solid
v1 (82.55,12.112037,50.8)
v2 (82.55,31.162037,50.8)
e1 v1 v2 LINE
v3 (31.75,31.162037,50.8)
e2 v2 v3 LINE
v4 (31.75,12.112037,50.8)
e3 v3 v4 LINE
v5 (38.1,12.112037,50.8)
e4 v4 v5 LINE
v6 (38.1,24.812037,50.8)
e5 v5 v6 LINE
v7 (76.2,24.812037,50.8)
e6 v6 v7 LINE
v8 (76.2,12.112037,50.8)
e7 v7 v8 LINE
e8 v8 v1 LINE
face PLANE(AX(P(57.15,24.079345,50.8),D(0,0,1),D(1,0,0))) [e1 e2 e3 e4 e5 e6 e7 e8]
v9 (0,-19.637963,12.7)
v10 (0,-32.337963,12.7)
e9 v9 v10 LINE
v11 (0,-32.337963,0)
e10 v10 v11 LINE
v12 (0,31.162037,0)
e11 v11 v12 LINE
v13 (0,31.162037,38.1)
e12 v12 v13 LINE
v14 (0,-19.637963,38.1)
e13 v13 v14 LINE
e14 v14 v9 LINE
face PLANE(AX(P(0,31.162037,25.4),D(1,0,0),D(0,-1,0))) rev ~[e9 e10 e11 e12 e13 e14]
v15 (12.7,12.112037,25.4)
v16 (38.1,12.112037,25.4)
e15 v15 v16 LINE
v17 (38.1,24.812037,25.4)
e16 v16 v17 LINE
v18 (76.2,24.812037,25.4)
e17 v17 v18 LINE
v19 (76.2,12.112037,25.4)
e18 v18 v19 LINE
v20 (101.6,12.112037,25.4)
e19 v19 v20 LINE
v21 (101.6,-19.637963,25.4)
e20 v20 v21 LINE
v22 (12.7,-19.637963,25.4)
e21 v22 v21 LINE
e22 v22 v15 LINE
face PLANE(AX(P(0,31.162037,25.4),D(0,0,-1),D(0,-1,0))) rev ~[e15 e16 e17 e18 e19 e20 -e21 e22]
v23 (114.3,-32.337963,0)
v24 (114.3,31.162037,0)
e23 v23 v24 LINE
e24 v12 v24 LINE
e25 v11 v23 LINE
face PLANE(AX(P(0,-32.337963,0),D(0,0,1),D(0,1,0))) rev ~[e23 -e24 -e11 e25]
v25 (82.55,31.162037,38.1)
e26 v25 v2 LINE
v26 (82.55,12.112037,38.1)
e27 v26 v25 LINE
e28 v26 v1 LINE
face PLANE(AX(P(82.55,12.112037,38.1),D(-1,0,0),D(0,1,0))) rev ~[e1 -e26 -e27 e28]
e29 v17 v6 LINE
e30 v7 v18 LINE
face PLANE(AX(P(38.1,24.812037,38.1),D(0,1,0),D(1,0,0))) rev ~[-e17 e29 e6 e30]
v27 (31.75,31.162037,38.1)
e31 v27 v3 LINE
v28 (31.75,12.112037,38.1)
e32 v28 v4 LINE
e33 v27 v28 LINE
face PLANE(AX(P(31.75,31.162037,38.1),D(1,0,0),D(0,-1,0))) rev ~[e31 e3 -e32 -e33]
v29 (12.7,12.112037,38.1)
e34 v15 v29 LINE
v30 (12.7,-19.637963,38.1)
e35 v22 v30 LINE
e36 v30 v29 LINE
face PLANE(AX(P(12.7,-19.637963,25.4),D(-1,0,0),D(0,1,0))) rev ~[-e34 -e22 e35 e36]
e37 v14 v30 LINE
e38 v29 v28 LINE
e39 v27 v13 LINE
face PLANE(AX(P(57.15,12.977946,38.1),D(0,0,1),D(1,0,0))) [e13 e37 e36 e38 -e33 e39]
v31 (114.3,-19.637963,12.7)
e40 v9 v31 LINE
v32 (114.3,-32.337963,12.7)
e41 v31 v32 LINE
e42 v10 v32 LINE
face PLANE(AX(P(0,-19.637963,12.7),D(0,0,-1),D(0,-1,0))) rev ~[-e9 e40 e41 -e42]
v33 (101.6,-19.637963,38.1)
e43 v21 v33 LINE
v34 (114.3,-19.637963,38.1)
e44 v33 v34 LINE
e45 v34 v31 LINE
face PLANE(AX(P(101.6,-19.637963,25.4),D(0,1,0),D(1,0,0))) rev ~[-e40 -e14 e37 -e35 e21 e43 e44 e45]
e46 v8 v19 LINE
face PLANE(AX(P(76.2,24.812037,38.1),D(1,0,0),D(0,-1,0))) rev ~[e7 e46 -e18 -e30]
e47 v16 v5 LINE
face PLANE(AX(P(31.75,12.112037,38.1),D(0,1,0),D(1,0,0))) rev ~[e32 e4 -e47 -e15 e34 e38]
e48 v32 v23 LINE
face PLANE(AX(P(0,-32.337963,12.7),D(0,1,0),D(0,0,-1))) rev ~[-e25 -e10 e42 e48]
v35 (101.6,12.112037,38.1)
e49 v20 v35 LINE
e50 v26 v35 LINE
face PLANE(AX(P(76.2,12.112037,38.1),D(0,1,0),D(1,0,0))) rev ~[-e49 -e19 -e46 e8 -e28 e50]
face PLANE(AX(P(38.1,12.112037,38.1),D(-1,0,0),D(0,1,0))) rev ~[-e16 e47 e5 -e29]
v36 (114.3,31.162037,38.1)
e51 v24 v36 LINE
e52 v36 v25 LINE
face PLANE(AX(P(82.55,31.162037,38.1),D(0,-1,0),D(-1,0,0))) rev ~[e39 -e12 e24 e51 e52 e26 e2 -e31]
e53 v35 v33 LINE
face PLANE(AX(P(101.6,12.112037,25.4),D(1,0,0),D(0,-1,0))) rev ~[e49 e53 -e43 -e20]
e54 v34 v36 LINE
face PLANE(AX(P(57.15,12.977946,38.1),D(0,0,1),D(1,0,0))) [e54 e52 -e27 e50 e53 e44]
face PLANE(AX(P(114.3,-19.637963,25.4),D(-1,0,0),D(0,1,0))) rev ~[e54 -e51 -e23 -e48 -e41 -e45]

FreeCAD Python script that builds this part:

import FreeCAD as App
import Part
import Sketcher
from FreeCAD import Vector
Q = App.Units.Quantity

doc = App.newDocument("Part")
body = doc.addObject("PartDesign::Body", "Body")

# Sketch on YZ plane
sketch1 = body.newObject("Sketcher::SketchObject", "Sketch")
sketch1.AttachmentSupport = (doc.getObject("YZ_Plane"), [""])
sketch1.MapMode = "FlatFace"
sketch1.addGeometry([
    Part.LineSegment(Vector(-32, 13, 0), Vector(-32, 0, 0)),  # 0
    Part.LineSegment(Vector(-32, 0, 0), Vector(31, 0, 0)),  # 1
    Part.LineSegment(Vector(31, 0, 0), Vector(31, 25, 0)),  # 2
    Part.LineSegment(Vector(31, 25, 0), Vector(-20, 25, 0)),  # 3
    Part.LineSegment(Vector(-20, 25, 0), Vector(-20, 13, 0)),  # 4
    Part.LineSegment(Vector(-20, 13, 0), Vector(-32, 13, 0)),  # 5
], False)
sketch1.addConstraint([
    Sketcher.Constraint("Coincident", 0, 2, 1, 1),
    Sketcher.Constraint("Coincident", 1, 2, 2, 1),
    Sketcher.Constraint("Coincident", 2, 2, 3, 1),
    Sketcher.Constraint("Coincident", 3, 2, 4, 1),
    Sketcher.Constraint("Coincident", 4, 2, 5, 1),
    Sketcher.Constraint("Coincident", 5, 2, 0, 1),
    Sketcher.Constraint("Vertical", 0),
    Sketcher.Constraint("Horizontal", 1),
    Sketcher.Constraint("Vertical", 2),
    Sketcher.Constraint("Horizontal", 3),
    Sketcher.Constraint("Vertical", 4),
    Sketcher.Constraint("Horizontal", 5),
    Sketcher.Constraint("PointOnObject", 0, 2, -1),
    Sketcher.Constraint("Equal", 5, 0),
    Sketcher.Constraint("Equal", 0, 4),
    Sketcher.Constraint("DistanceX", 3, 2, 3, 1, Q("2 in")),
    Sketcher.Constraint("DistanceY", 2, 1, 2, 2, Q("1 in")),
    Sketcher.Constraint("DistanceX", 0, 2, -1, 1, Q("32.337963 mm")),
])
pad1 = body.newObject("PartDesign::Pad", "Pad")
pad1.Profile = sketch1
pad1.Length = Q("4.5 in")

# Sketch on XY plane
sketch2 = body.newObject("Sketcher::SketchObject", "Sketch001")
sketch2.AttachmentSupport = (doc.getObject("XY_Plane"), [""])
sketch2.MapMode = "FlatFace"
sketch2.AttachmentOffset = App.Placement(Vector(0, 0, 1 * 25.4), App.Rotation())
sketch2.addGeometry([
    Part.LineSegment(Vector(114, -20, 0), Vector(114, 31, 0)),  # 0
    Part.LineSegment(Vector(114, 31, 0), Vector(0, 31, 0)),  # 1
    Part.LineSegment(Vector(0, 31, 0), Vector(0, -20, 0)),  # 2
    Part.LineSegment(Vector(0, -20, 0), Vector(13, -20, 0)),  # 3
    Part.LineSegment(Vector(13, -20, 0), Vector(13, 12, 0)),  # 4
    Part.LineSegment(Vector(13, 12, 0), Vector(38, 12, 0)),  # 5
    Part.LineSegment(Vector(38, 12, 0), Vector(38, 25, 0)),  # 6
    Part.LineSegment(Vector(38, 25, 0), Vector(76, 25, 0)),  # 7
    Part.LineSegment(Vector(76, 25, 0), Vector(76, 12, 0)),  # 8
    Part.LineSegment(Vector(76, 12, 0), Vector(102, 12, 0)),  # 9
    Part.LineSegment(Vector(102, 12, 0), Vector(102, -20, 0)),  # 10
    Part.LineSegment(Vector(102, -20, 0), Vector(114, -20, 0)),  # 11
], False)
sketch2.addConstraint([
    Sketcher.Constraint("Coincident", 0, 2, 1, 1),
    Sketcher.Constraint("Coincident", 1, 2, 2, 1),
    Sketcher.Constraint("Coincident", 2, 2, 3, 1),
    Sketcher.Constraint("Coincident", 3, 2, 4, 1),
    Sketcher.Constraint("Coincident", 4, 2, 5, 1),
    Sketcher.Constraint("Coincident", 5, 2, 6, 1),
    Sketcher.Constraint("Coincident", 6, 2, 7, 1),
    Sketcher.Constraint("Coincident", 7, 2, 8, 1),
    Sketcher.Constraint("Coincident", 8, 2, 9, 1),
    Sketcher.Constraint("Coincident", 9, 2, 10, 1),
    Sketcher.Constraint("Coincident", 10, 2, 11, 1),
    Sketcher.Constraint("Coincident", 11, 2, 0, 1),
    Sketcher.Constraint("Vertical", 0),
    Sketcher.Constraint("Horizontal", 1),
    Sketcher.Constraint("Vertical", 2),
    Sketcher.Constraint("Horizontal", 3),
    Sketcher.Constraint("Vertical", 4),
    Sketcher.Constraint("Horizontal", 5),
    Sketcher.Constraint("Vertical", 6),
    Sketcher.Constraint("Horizontal", 7),
    Sketcher.Constraint("Vertical", 8),
    Sketcher.Constraint("Horizontal", 9),
    Sketcher.Constraint("Vertical", 10),
    Sketcher.Constraint("Horizontal", 11),
    Sketcher.Constraint("PointOnObject", 1, 2, -2),
    Sketcher.Constraint("Horizontal", 5, 2, 8, 2),
    Sketcher.Constraint("Horizontal", 3, 2, 10, 2),
    Sketcher.Constraint("Equal", 5, 9),
    Sketcher.Constraint("Equal", 3, 11),
    Sketcher.Constraint("Equal", 11, 6),
    Sketcher.Constraint("DistanceX", 5, 1, 5, 2, Q("1 in")),
    Sketcher.Constraint("DistanceY", 0, 1, 0, 2, Q("2 in")),
    Sketcher.Constraint("DistanceX", 1, 2, 1, 1, Q("4.5 in")),
    Sketcher.Constraint("DistanceX", 3, 1, 3, 2, Q("0.5 in")),
    Sketcher.Constraint("DistanceY", 4, 1, 4, 2, Q("1.25 in")),
    Sketcher.Constraint("DistanceY", -1, 1, 0, 2, Q("31.162037 mm")),
])
pad2 = body.newObject("PartDesign::Pad", "Pad001")
pad2.Profile = sketch2
pad2.Length = Q("0.5 in")

# Sketch on XY plane
sketch3 = body.newObject("Sketcher::SketchObject", "Sketch002")
sketch3.AttachmentSupport = (doc.getObject("XY_Plane"), [""])
sketch3.MapMode = "FlatFace"
sketch3.AttachmentOffset = App.Placement(Vector(0, 0, 1.5 * 25.4), App.Rotation())
sketch3.addGeometry([
    Part.LineSegment(Vector(83, 12, 0), Vector(83, 31, 0)),  # 0
    Part.LineSegment(Vector(83, 31, 0), Vector(32, 31, 0)),  # 1
    Part.LineSegment(Vector(32, 31, 0), Vector(32, 12, 0)),  # 2
    Part.LineSegment(Vector(32, 12, 0), Vector(38, 12, 0)),  # 3
    Part.LineSegment(Vector(38, 12, 0), Vector(38, 25, 0)),  # 4
    Part.LineSegment(Vector(38, 25, 0), Vector(76, 25, 0)),  # 5
    Part.LineSegment(Vector(76, 25, 0), Vector(76, 12, 0)),  # 6
    Part.LineSegment(Vector(76, 12, 0), Vector(83, 12, 0)),  # 7
], False)
sketch3.addConstraint([
    Sketcher.Constraint("Coincident", 0, 2, 1, 1),
    Sketcher.Constraint("Coincident", 1, 2, 2, 1),
    Sketcher.Constraint("Coincident", 2, 2, 3, 1),
    Sketcher.Constraint("Coincident", 3, 2, 4, 1),
    Sketcher.Constraint("Coincident", 4, 2, 5, 1),
    Sketcher.Constraint("Coincident", 5, 2, 6, 1),
    Sketcher.Constraint("Coincident", 6, 2, 7, 1),
    Sketcher.Constraint("Coincident", 7, 2, 0, 1),
    Sketcher.Constraint("Vertical", 0),
    Sketcher.Constraint("Horizontal", 1),
    Sketcher.Constraint("Vertical", 2),
    Sketcher.Constraint("Horizontal", 3),
    Sketcher.Constraint("Vertical", 4),
    Sketcher.Constraint("Horizontal", 5),
    Sketcher.Constraint("Vertical", 6),
    Sketcher.Constraint("Horizontal", 7),
    Sketcher.Constraint("Horizontal", 3, 2, 6, 2),
    Sketcher.Constraint("Equal", 3, 7),
    Sketcher.Constraint("DistanceX", 1, 2, 1, 1, Q("2 in")),
    Sketcher.Constraint("DistanceX", 5, 1, 5, 2, Q("1.5 in")),
    Sketcher.Constraint("DistanceY", 4, 1, 4, 2, Q("0.5 in")),
    Sketcher.Constraint("DistanceX", -1, 1, 5, 2, Q("3 in")),
    Sketcher.Constraint("DistanceY", 0, 1, 0, 2, Q("0.75 in")),
    Sketcher.Constraint("DistanceY", -1, 1, 0, 2, Q("31.162037 mm")),
])
pad3 = body.newObject("PartDesign::Pad", "Pad002")
pad3.Profile = sketch3
pad3.Length = Q("0.5 in")

doc.recompute()
